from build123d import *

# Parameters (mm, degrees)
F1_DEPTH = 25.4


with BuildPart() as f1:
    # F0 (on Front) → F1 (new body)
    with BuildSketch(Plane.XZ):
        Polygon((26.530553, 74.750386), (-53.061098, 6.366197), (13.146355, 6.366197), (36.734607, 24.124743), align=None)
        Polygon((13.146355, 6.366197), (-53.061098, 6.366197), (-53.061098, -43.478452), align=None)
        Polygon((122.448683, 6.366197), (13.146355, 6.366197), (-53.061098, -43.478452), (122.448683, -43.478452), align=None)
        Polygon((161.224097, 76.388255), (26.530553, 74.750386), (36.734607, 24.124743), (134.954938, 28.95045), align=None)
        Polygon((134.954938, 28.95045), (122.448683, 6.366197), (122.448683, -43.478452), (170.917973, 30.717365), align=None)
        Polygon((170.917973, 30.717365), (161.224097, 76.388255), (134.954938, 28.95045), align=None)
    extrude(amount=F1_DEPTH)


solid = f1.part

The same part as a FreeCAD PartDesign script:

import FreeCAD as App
import Part
import Sketcher

V = App.Vector


def add_polygon(sketch, points):
    """Adds a closed chain of lines whose ends are joined by coincident constraints."""
    first, n = sketch.GeometryCount, len(points)
    for a, b in zip(points, points[1:] + points[:1]):
        sketch.addGeometry(Part.LineSegment(App.Vector(*a, 0), App.Vector(*b, 0)), False)
    for i in range(n):
        sketch.addConstraint(Sketcher.Constraint("Coincident", first + i, 2, first + (i + 1) % n, 1))

doc = App.newDocument("Part")
params = doc.addObject("Spreadsheet::Sheet", "Params")
for row, (alias, value) in enumerate([
    ("pad1_length", "1 in"),
], start=1):
    params.set(f"A{row}", alias)
    params.set(f"B{row}", "=" + value)
    params.setAlias(f"B{row}", alias)

body = doc.addObject("PartDesign::Body", "Body")

# Sketch on XZ plane
sketch1 = body.newObject("Sketcher::SketchObject", "Sketch")
sketch1.AttachmentSupport = (doc.getObject("XZ_Plane"), [""])
sketch1.MapMode = "FlatFace"
add_polygon(sketch1, [(122.448683, -43.478452), (170.917973, 30.717365), (161.224097, 76.388255), (26.530553, 74.750386), (-53.061098, 6.366197), (-53.061098, -43.478452)])  # lines 0-5
add_polygon(sketch1, [(36.734607, 24.124743), (134.954938, 28.95045), (122.448683, 6.366197), (13.146355, 6.366197)])  # lines 6-9
sketch1.addConstraint(Sketcher.Constraint("Vertical", 4))
sketch1.addConstraint(Sketcher.Constraint("Horizontal", 5))
sketch1.addConstraint(Sketcher.Constraint("Horizontal", 8))
sketch1.addConstraint(Sketcher.Constraint("Horizontal", 3, 2, 7, 2))
sketch1.addConstraint(Sketcher.Constraint("Vertical", 5, 2, 7, 2))
sketch1.addConstraint(Sketcher.Constraint("Distance", 2, 134.703502))
sketch1.addConstraint(Sketcher.Constraint("Distance", 3, 104.9344))
sketch1.addConstraint(Sketcher.Constraint("DistanceX", 5, 1, 5, 2, 175.509781))
sketch1.addConstraint(Sketcher.Constraint("DistanceX", 8, 2, 8, 1, 109.302328))
sketch1.addConstraint(Sketcher.Constraint("DistanceY", 4, 2, 4, 1, 49.844649))
sketch1.addConstraint(Sketcher.Constraint("DistanceY", 5, 2, 6, 2, 72.428902))
sketch1.addConstraint(Sketcher.Constraint("DistanceX", 8, 2, 2, 2, 13.384198))
sketch1.addConstraint(Sketcher.Constraint("Distance", 0, 88.62444))
sketch1.addConstraint(Sketcher.Constraint("Distance", 9, 29.525778))
sketch1.addConstraint(Sketcher.Constraint("DistanceY", 4, 2, -1, 1, 43.478452))
sketch1.addConstraint(Sketcher.Constraint("DistanceX", -1, 1, 6, 2, 134.954938))
sketch1.addConstraint(Sketcher.Constraint("DistanceY", 0, 2, 1, 2, 45.67089))
sketch1.addConstraint(Sketcher.Constraint("DistanceY", 2, 2, 1, 2, 1.637869))
sketch1.addConstraint(Sketcher.Constraint("DistanceX", 6, 2, 1, 2, 26.269159))
sketch1.addConstraint(Sketcher.Constraint("DistanceX", 8, 2, 9, 2, 23.588252))
pad1 = body.newObject("PartDesign::Pad", "Pad")
pad1.Profile = sketch1
pad1.setExpression("Length", "Params.pad1_length")

doc.recompute()
